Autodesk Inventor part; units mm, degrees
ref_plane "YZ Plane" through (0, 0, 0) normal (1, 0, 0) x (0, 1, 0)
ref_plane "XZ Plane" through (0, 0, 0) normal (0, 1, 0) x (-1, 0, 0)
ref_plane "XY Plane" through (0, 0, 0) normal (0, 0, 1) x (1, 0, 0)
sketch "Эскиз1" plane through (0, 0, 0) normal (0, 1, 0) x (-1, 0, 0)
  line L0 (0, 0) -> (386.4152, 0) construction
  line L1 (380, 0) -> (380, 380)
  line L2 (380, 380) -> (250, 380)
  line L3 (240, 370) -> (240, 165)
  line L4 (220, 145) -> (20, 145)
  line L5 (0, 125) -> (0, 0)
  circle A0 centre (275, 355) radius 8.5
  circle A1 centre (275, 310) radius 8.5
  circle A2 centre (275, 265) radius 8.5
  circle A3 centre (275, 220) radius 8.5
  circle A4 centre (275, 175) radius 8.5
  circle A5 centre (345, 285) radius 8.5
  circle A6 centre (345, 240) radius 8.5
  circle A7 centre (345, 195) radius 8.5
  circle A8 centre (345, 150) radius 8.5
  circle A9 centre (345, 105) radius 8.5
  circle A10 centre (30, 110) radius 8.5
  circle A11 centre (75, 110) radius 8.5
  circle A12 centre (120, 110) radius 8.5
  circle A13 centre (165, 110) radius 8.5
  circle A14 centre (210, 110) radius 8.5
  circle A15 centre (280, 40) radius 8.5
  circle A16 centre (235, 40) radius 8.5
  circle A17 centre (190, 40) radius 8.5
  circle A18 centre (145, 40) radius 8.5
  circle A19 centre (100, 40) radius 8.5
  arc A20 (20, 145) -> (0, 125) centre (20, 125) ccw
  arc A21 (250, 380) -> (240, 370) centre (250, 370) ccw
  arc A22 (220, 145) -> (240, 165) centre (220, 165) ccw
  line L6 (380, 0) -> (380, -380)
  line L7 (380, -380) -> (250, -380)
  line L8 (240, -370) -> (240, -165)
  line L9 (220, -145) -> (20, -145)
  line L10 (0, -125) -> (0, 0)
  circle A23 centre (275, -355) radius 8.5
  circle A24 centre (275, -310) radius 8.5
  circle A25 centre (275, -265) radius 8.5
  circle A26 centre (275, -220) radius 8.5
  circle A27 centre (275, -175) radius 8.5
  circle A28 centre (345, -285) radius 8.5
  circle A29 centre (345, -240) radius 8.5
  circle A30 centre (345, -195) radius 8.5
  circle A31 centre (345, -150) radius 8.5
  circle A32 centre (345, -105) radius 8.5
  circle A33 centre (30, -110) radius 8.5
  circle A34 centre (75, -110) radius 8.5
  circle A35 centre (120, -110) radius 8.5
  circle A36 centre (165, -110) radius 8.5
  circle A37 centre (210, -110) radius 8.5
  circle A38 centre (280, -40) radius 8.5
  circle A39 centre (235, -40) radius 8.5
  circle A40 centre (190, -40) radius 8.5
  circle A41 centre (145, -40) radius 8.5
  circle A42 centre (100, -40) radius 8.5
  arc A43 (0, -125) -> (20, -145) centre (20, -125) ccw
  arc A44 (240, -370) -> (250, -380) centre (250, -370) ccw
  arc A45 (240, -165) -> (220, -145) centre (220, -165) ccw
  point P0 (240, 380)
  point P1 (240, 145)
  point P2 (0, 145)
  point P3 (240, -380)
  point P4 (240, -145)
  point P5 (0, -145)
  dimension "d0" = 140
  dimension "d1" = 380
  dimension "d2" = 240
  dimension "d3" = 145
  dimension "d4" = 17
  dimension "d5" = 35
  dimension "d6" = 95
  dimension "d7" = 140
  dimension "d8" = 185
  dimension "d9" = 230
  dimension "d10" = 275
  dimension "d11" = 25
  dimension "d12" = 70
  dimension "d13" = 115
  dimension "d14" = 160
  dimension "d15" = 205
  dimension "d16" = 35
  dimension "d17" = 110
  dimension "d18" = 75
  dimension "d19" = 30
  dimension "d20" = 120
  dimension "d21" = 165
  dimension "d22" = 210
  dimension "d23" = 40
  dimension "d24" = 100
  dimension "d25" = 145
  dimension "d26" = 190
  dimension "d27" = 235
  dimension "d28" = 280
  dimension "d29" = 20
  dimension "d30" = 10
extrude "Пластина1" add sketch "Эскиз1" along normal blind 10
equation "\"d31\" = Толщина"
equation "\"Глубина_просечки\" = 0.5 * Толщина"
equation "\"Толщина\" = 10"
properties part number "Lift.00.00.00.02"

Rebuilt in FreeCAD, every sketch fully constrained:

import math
import FreeCAD as App
import Part
import Sketcher
from FreeCAD import Vector
Q = App.Units.Quantity

doc = App.newDocument("Part")
body = doc.addObject("PartDesign::Body", "Body")

# Sketch on XZ plane
sketch1 = body.newObject("Sketcher::SketchObject", "Sketch")
sketch1.AttachmentSupport = (doc.getObject("XZ_Plane"), [""])
sketch1.MapMode = "FlatFace"
sketch1.addGeometry(Part.LineSegment(Vector(-380, -380, 0), Vector(-380, 380, 0)), False)
sketch1.addGeometry(Part.LineSegment(Vector(-380, 380, 0), Vector(-250, 380, 0)), False)
sketch1.addGeometry(Part.ArcOfCircle(Part.Circle(Vector(-250, 370, 0), Vector(0, 0, 1), 10), math.radians(0), math.radians(90)), False)
sketch1.addGeometry(Part.LineSegment(Vector(-240, 370, 0), Vector(-240, 165, 0)), False)
sketch1.addGeometry(Part.ArcOfCircle(Part.Circle(Vector(-220, 165, 0), Vector(0, 0, 1), 20), math.radians(180), math.radians(270)), False)
sketch1.addGeometry(Part.LineSegment(Vector(-220, 145, 0), Vector(-20, 145, 0)), False)
sketch1.addGeometry(Part.ArcOfCircle(Part.Circle(Vector(-20, 125, 0), Vector(0, 0, 1), 20), math.radians(0), math.radians(90)), False)
sketch1.addGeometry(Part.LineSegment(Vector(0, 125, 0), Vector(0, -125, 0)), False)
sketch1.addGeometry(Part.ArcOfCircle(Part.Circle(Vector(-20, -125, 0), Vector(0, 0, 1), 20), math.radians(-90), math.radians(0)), False)
sketch1.addGeometry(Part.LineSegment(Vector(-20, -145, 0), Vector(-220, -145, 0)), False)
sketch1.addGeometry(Part.ArcOfCircle(Part.Circle(Vector(-220, -165, 0), Vector(0, 0, 1), 20), math.radians(90), math.radians(180)), False)
sketch1.addGeometry(Part.LineSegment(Vector(-240, -165, 0), Vector(-240, -370, 0)), False)
sketch1.addGeometry(Part.ArcOfCircle(Part.Circle(Vector(-250, -370, 0), Vector(0, 0, 1), 10), math.radians(-90), math.radians(0)), False)
sketch1.addGeometry(Part.LineSegment(Vector(-250, -380, 0), Vector(-380, -380, 0)), False)
sketch1.addGeometry(Part.Circle(Vector(-30, -110, 0), Vector(0, 0, 1), 8), False)
sketch1.addGeometry(Part.Circle(Vector(-75, -110, 0), Vector(0, 0, 1), 8), False)
sketch1.addGeometry(Part.Circle(Vector(-120, -110, 0), Vector(0, 0, 1), 8), False)
sketch1.addGeometry(Part.Circle(Vector(-165, -110, 0), Vector(0, 0, 1), 8), False)
sketch1.addGeometry(Part.Circle(Vector(-100, -40, 0), Vector(0, 0, 1), 8), False)
sketch1.addGeometry(Part.Circle(Vector(-145, -40, 0), Vector(0, 0, 1), 8), False)
sketch1.addGeometry(Part.Circle(Vector(-275, -355, 0), Vector(0, 0, 1), 8), False)
sketch1.addGeometry(Part.Circle(Vector(-275, -310, 0), Vector(0, 0, 1), 8), False)
sketch1.addGeometry(Part.Circle(Vector(-275, -265, 0), Vector(0, 0, 1), 8), False)
sketch1.addGeometry(Part.Circle(Vector(-275, -220, 0), Vector(0, 0, 1), 8), False)
sketch1.addGeometry(Part.Circle(Vector(-345, -285, 0), Vector(0, 0, 1), 8), False)
sketch1.addGeometry(Part.Circle(Vector(-345, -240, 0), Vector(0, 0, 1), 8), False)
sketch1.addGeometry(Part.Circle(Vector(-345, -195, 0), Vector(0, 0, 1), 8), False)
sketch1.addGeometry(Part.Circle(Vector(-210, -110, 0), Vector(0, 0, 1), 8), False)
sketch1.addGeometry(Part.Circle(Vector(-275, -175, 0), Vector(0, 0, 1), 8), False)
sketch1.addGeometry(Part.Circle(Vector(-190, -40, 0), Vector(0, 0, 1), 8), False)
sketch1.addGeometry(Part.Circle(Vector(-235, -40, 0), Vector(0, 0, 1), 8), False)
sketch1.addGeometry(Part.Circle(Vector(-280, -40, 0), Vector(0, 0, 1), 8), False)
sketch1.addGeometry(Part.Circle(Vector(-345, -150, 0), Vector(0, 0, 1), 8), False)
sketch1.addGeometry(Part.Circle(Vector(-345, -105, 0), Vector(0, 0, 1), 8), False)
sketch1.addGeometry(Part.Circle(Vector(-30, 110, 0), Vector(0, 0, 1), 8), False)
sketch1.addGeometry(Part.Circle(Vector(-75, 110, 0), Vector(0, 0, 1), 8), False)
sketch1.addGeometry(Part.Circle(Vector(-100, 40, 0), Vector(0, 0, 1), 8), False)
sketch1.addGeometry(Part.Circle(Vector(-145, 40, 0), Vector(0, 0, 1), 8), False)
sketch1.addGeometry(Part.Circle(Vector(-120, 110, 0), Vector(0, 0, 1), 8), False)
sketch1.addGeometry(Part.Circle(Vector(-165, 110, 0), Vector(0, 0, 1), 8), False)
sketch1.addGeometry(Part.Circle(Vector(-190, 40, 0), Vector(0, 0, 1), 8), False)
sketch1.addGeometry(Part.Circle(Vector(-235, 40, 0), Vector(0, 0, 1), 8), False)
sketch1.addGeometry(Part.Circle(Vector(-280, 40, 0), Vector(0, 0, 1), 8), False)
sketch1.addGeometry(Part.Circle(Vector(-210, 110, 0), Vector(0, 0, 1), 8), False)
sketch1.addGeometry(Part.Circle(Vector(-275, 175, 0), Vector(0, 0, 1), 8), False)
sketch1.addGeometry(Part.Circle(Vector(-345, 105, 0), Vector(0, 0, 1), 8), False)
sketch1.addGeometry(Part.Circle(Vector(-345, 150, 0), Vector(0, 0, 1), 8), False)
sketch1.addGeometry(Part.Circle(Vector(-275, 220, 0), Vector(0, 0, 1), 8), False)
sketch1.addGeometry(Part.Circle(Vector(-275, 265, 0), Vector(0, 0, 1), 8), False)
sketch1.addGeometry(Part.Circle(Vector(-275, 310, 0), Vector(0, 0, 1), 8), False)
sketch1.addGeometry(Part.Circle(Vector(-275, 355, 0), Vector(0, 0, 1), 8), False)
sketch1.addGeometry(Part.Circle(Vector(-345, 195, 0), Vector(0, 0, 1), 8), False)
sketch1.addGeometry(Part.Circle(Vector(-345, 240, 0), Vector(0, 0, 1), 8), False)
sketch1.addGeometry(Part.Circle(Vector(-345, 285, 0), Vector(0, 0, 1), 8), False)
sketch1.addConstraint(Sketcher.Constraint("Coincident", 0, 2, 1, 1))
sketch1.addConstraint(Sketcher.Constraint("Tangent", 1, 2, 2, 2))
sketch1.addConstraint(Sketcher.Constraint("Tangent", 2, 1, 3, 1))
sketch1.addConstraint(Sketcher.Constraint("Tangent", 3, 2, 4, 1))
sketch1.addConstraint(Sketcher.Constraint("Tangent", 4, 2, 5, 1))
sketch1.addConstraint(Sketcher.Constraint("Tangent", 5, 2, 6, 2))
sketch1.addConstraint(Sketcher.Constraint("Tangent", 6, 1, 7, 1))
sketch1.addConstraint(Sketcher.Constraint("Tangent", 7, 2, 8, 2))
sketch1.addConstraint(Sketcher.Constraint("Tangent", 8, 1, 9, 1))
sketch1.addConstraint(Sketcher.Constraint("Tangent", 9, 2, 10, 1))
sketch1.addConstraint(Sketcher.Constraint("Tangent", 10, 2, 11, 1))
sketch1.addConstraint(Sketcher.Constraint("Tangent", 11, 2, 12, 2))
sketch1.addConstraint(Sketcher.Constraint("Tangent", 12, 1, 13, 1))
sketch1.addConstraint(Sketcher.Constraint("Coincident", 13, 2, 0, 1))
sketch1.addConstraint(Sketcher.Constraint("Vertical", 0))
sketch1.addConstraint(Sketcher.Constraint("Horizontal", 1))
sketch1.addConstraint(Sketcher.Constraint("Vertical", 3))
sketch1.addConstraint(Sketcher.Constraint("Horizontal", 5))
sketch1.addConstraint(Sketcher.Constraint("Vertical", 7))
sketch1.addConstraint(Sketcher.Constraint("Horizontal", 9))
sketch1.addConstraint(Sketcher.Constraint("Vertical", 11))
sketch1.addConstraint(Sketcher.Constraint("Horizontal", 13))
sketch1.addConstraint(Sketcher.Constraint("Equal", 4, 6))
sketch1.addConstraint(Sketcher.Constraint("Equal", 6, 8))
sketch1.addConstraint(Sketcher.Constraint("Equal", 8, 10))
sketch1.addConstraint(Sketcher.Constraint("Equal", 2, 12))
sketch1.addConstraint(Sketcher.Constraint("Equal", 14, 15))
sketch1.addConstraint(Sketcher.Constraint("Equal", 15, 16))
sketch1.addConstraint(Sketcher.Constraint("Equal", 16, 17))
sketch1.addConstraint(Sketcher.Constraint("Equal", 17, 18))
sketch1.addConstraint(Sketcher.Constraint("Equal", 18, 19))
sketch1.addConstraint(Sketcher.Constraint("Equal", 19, 20))
sketch1.addConstraint(Sketcher.Constraint("Equal", 20, 21))
sketch1.addConstraint(Sketcher.Constraint("Equal", 21, 22))
sketch1.addConstraint(Sketcher.Constraint("Equal", 22, 23))
sketch1.addConstraint(Sketcher.Constraint("Equal", 23, 24))
sketch1.addConstraint(Sketcher.Constraint("Equal", 24, 25))
sketch1.addConstraint(Sketcher.Constraint("Equal", 25, 26))
sketch1.addConstraint(Sketcher.Constraint("Equal", 26, 27))
sketch1.addConstraint(Sketcher.Constraint("Equal", 27, 28))
sketch1.addConstraint(Sketcher.Constraint("Equal", 28, 29))
sketch1.addConstraint(Sketcher.Constraint("Equal", 29, 30))
sketch1.addConstraint(Sketcher.Constraint("Equal", 30, 31))
sketch1.addConstraint(Sketcher.Constraint("Equal", 31, 32))
sketch1.addConstraint(Sketcher.Constraint("Equal", 32, 33))
sketch1.addConstraint(Sketcher.Constraint("Equal", 33, 34))
sketch1.addConstraint(Sketcher.Constraint("Equal", 34, 35))
sketch1.addConstraint(Sketcher.Constraint("Equal", 35, 36))
sketch1.addConstraint(Sketcher.Constraint("Equal", 36, 37))
sketch1.addConstraint(Sketcher.Constraint("Equal", 37, 38))
sketch1.addConstraint(Sketcher.Constraint("Equal", 38, 39))
sketch1.addConstraint(Sketcher.Constraint("Equal", 39, 40))
sketch1.addConstraint(Sketcher.Constraint("Equal", 40, 41))
sketch1.addConstraint(Sketcher.Constraint("Equal", 41, 42))
sketch1.addConstraint(Sketcher.Constraint("Equal", 42, 43))
sketch1.addConstraint(Sketcher.Constraint("Equal", 43, 44))
sketch1.addConstraint(Sketcher.Constraint("Equal", 44, 45))
sketch1.addConstraint(Sketcher.Constraint("Equal", 45, 46))
sketch1.addConstraint(Sketcher.Constraint("Equal", 46, 47))
sketch1.addConstraint(Sketcher.Constraint("Equal", 47, 48))
sketch1.addConstraint(Sketcher.Constraint("Equal", 48, 49))
sketch1.addConstraint(Sketcher.Constraint("Equal", 49, 50))
sketch1.addConstraint(Sketcher.Constraint("Equal", 50, 51))
sketch1.addConstraint(Sketcher.Constraint("Equal", 51, 52))
sketch1.addConstraint(Sketcher.Constraint("Equal", 52, 53))
sketch1.addConstraint(Sketcher.Constraint("Symmetric", 6, 1, 7, 2, -1, 1))
sketch1.addConstraint(Sketcher.Constraint("Symmetric", 2, 3, 12, 3, -1))
sketch1.addConstraint(Sketcher.Constraint("Symmetric", 14, 3, 34, 3, -1))
sketch1.addConstraint(Sketcher.Constraint("Symmetric", 15, 3, 35, 3, -1))
sketch1.addConstraint(Sketcher.Constraint("Symmetric", 18, 3, 36, 3, -1))
sketch1.addConstraint(Sketcher.Constraint("Symmetric", 19, 3, 37, 3, -1))
sketch1.addConstraint(Sketcher.Constraint("Symmetric", 16, 3, 38, 3, -1))
sketch1.addConstraint(Sketcher.Constraint("Symmetric", 17, 3, 39, 3, -1))
sketch1.addConstraint(Sketcher.Constraint("Symmetric", 29, 3, 40, 3, -1))
sketch1.addConstraint(Sketcher.Constraint("Symmetric", 30, 3, 41, 3, -1))
sketch1.addConstraint(Sketcher.Constraint("Symmetric", 31, 3, 42, 3, -1))
sketch1.addConstraint(Sketcher.Constraint("Symmetric", 27, 3, 43, 3, -1))
sketch1.addConstraint(Sketcher.Constraint("Symmetric", 28, 3, 44, 3, -1))
sketch1.addConstraint(Sketcher.Constraint("Symmetric", 33, 3, 45, 3, -1))
sketch1.addConstraint(Sketcher.Constraint("Symmetric", 32, 3, 46, 3, -1))
sketch1.addConstraint(Sketcher.Constraint("Symmetric", 23, 3, 47, 3, -1))
sketch1.addConstraint(Sketcher.Constraint("Symmetric", 22, 3, 48, 3, -1))
sketch1.addConstraint(Sketcher.Constraint("Symmetric", 21, 3, 49, 3, -1))
sketch1.addConstraint(Sketcher.Constraint("Symmetric", 20, 3, 50, 3, -1))
sketch1.addConstraint(Sketcher.Constraint("Symmetric", 26, 3, 51, 3, -1))
sketch1.addConstraint(Sketcher.Constraint("Symmetric", 25, 3, 52, 3, -1))
sketch1.addConstraint(Sketcher.Constraint("Symmetric", 24, 3, 53, 3, -1))
sketch1.addConstraint(Sketcher.Constraint("Horizontal", 14, 3, 15, 3))
sketch1.addConstraint(Sketcher.Constraint("Horizontal", 15, 3, 16, 3))
sketch1.addConstraint(Sketcher.Constraint("Horizontal", 16, 3, 17, 3))
sketch1.addConstraint(Sketcher.Constraint("Horizontal", 18, 3, 19, 3))
sketch1.addConstraint(Sketcher.Constraint("Horizontal", 17, 3, 27, 3))
sketch1.addConstraint(Sketcher.Constraint("Horizontal", 19, 3, 29, 3))
sketch1.addConstraint(Sketcher.Constraint("Horizontal", 29, 3, 30, 3))
sketch1.addConstraint(Sketcher.Constraint("Horizontal", 30, 3, 31, 3))
sketch1.addConstraint(Sketcher.Constraint("Vertical", 20, 3, 21, 3))
sketch1.addConstraint(Sketcher.Constraint("Vertical", 21, 3, 22, 3))
sketch1.addConstraint(Sketcher.Constraint("Vertical", 22, 3, 23, 3))
sketch1.addConstraint(Sketcher.Constraint("Vertical", 24, 3, 25, 3))
sketch1.addConstraint(Sketcher.Constraint("Vertical", 25, 3, 26, 3))
sketch1.addConstraint(Sketcher.Constraint("Vertical", 23, 3, 28, 3))
sketch1.addConstraint(Sketcher.Constraint("Vertical", 26, 3, 32, 3))
sketch1.addConstraint(Sketcher.Constraint("Vertical", 32, 3, 33, 3))
sketch1.addConstraint(Sketcher.Constraint("Diameter", 14, Q("17 mm")))
sketch1.addConstraint(Sketcher.Constraint("Radius", 2, Q("10 mm")))
sketch1.addConstraint(Sketcher.Constraint("Radius", 4, Q("20 mm")))
sketch1.addConstraint(Sketcher.Constraint("DistanceY", 3, 2, 3, 1, Q("205 mm")))
sketch1.addConstraint(Sketcher.Constraint("DistanceY", -1, 1, 4, 3, Q("165 mm")))
sketch1.addConstraint(Sketcher.Constraint("DistanceX", 14, 3, -1, 1, Q("30 mm")))
sketch1.addConstraint(Sketcher.Constraint("DistanceY", 14, 3, -1, 1, Q("110 mm")))
sketch1.addConstraint(Sketcher.Constraint("DistanceX", 15, 3, -1, 1, Q("75 mm")))
sketch1.addConstraint(Sketcher.Constraint("DistanceX", 16, 3, -1, 1, Q("120 mm")))
sketch1.addConstraint(Sketcher.Constraint("DistanceX", 17, 3, -1, 1, Q("165 mm")))
sketch1.addConstraint(Sketcher.Constraint("DistanceX", 18, 3, -1, 1, Q("100 mm")))
sketch1.addConstraint(Sketcher.Constraint("DistanceY", 18, 3, -1, 1, Q("40 mm")))
sketch1.addConstraint(Sketcher.Constraint("DistanceX", 19, 3, -1, 1, Q("145 mm")))
sketch1.addConstraint(Sketcher.Constraint("DistanceX", 20, 3, -1, 1, Q("275 mm")))
sketch1.addConstraint(Sketcher.Constraint("DistanceY", 25, 3, -1, 1, Q("240 mm")))
sketch1.addConstraint(Sketcher.Constraint("DistanceX", 27, 3, -1, 1, Q("210 mm")))
sketch1.addConstraint(Sketcher.Constraint("DistanceX", 29, 3, -1, 1, Q("190 mm")))
sketch1.addConstraint(Sketcher.Constraint("DistanceX", 30, 3, -1, 1, Q("235 mm")))
sketch1.addConstraint(Sketcher.Constraint("DistanceX", 31, 3, -1, 1, Q("280 mm")))
sketch1.addConstraint(Sketcher.Constraint("DistanceX", 0, 2, -1, 1, Q("380 mm")))
sketch1.addConstraint(Sketcher.Constraint("DistanceX", 2, 1, -1, 1, Q("240 mm")))
sketch1.addConstraint(Sketcher.Constraint("DistanceY", 20, 3, 10, 3, Q("190 mm")))
sketch1.addConstraint(Sketcher.Constraint("DistanceY", 21, 3, 10, 3, Q("145 mm")))
sketch1.addConstraint(Sketcher.Constraint("DistanceY", 22, 3, 10, 3, Q("100 mm")))
sketch1.addConstraint(Sketcher.Constraint("DistanceX", 24, 3, 22, 3, Q("70 mm")))
sketch1.addConstraint(Sketcher.Constraint("DistanceY", 24, 3, 22, 3, Q("20 mm")))
sketch1.addConstraint(Sketcher.Constraint("DistanceY", 25, 3, 23, 3, Q("20 mm")))
sketch1.addConstraint(Sketcher.Constraint("DistanceY", 23, 3, 26, 3, Q("25 mm")))
sketch1.addConstraint(Sketcher.Constraint("DistanceY", 28, 3, 10, 3, Q("10 mm")))
sketch1.addConstraint(Sketcher.Constraint("DistanceY", 28, 3, 32, 3, Q("25 mm")))
sketch1.addConstraint(Sketcher.Constraint("DistanceY", 28, 3, 33, 3, Q("70 mm")))
pad1 = body.newObject("PartDesign::Pad", "Pad")
pad1.Profile = sketch1
pad1.Length = 10
pad1.Reversed = True

doc.recompute()
